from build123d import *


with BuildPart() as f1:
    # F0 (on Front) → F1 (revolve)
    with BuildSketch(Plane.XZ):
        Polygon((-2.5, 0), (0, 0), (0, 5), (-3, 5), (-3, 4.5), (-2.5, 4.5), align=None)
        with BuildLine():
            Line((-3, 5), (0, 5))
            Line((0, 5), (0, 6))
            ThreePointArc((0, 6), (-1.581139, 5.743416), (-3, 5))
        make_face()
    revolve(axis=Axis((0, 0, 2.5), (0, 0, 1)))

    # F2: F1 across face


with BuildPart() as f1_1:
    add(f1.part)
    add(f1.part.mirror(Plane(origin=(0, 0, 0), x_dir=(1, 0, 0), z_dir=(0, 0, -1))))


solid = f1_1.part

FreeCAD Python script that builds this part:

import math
import FreeCAD as App
import Part
import Sketcher

V = App.Vector

doc = App.newDocument("Part")
params = doc.addObject("Spreadsheet::Sheet", "Params")
for row, (alias, value) in enumerate([
    ("sketch1_height", "6 mm"),
    ("sketch1_width", "2.5 mm"),
    ("sketch1_width2", "0.5 mm"),
    ("sketch1_height2", "4.5 mm"),
    ("revolution_angle", "360 deg"),
], start=1):
    params.set(f"A{row}", alias)
    params.set(f"B{row}", "=" + value)
    params.setAlias(f"B{row}", alias)

body = doc.addObject("PartDesign::Body", "Body")

sketch1 = doc.addObject("Sketcher::SketchObject", "Sketch")
body.addObject(sketch1)
sketch1.AttachmentSupport = (doc.XZ_Plane, [""])
sketch1.MapMode = "FlatFace"
sketch1.addGeometry(Part.LineSegment(V(-2.5, 0, 0), V(0, 0, 0)), False)
sketch1.addGeometry(Part.LineSegment(V(0, 0, 0), V(0, 6, 0)), False)
sketch1.addGeometry(Part.ArcOfCircle(Part.Circle(V(0, 1, 0), V(0, 0, 1), 5), math.radians(90), math.radians(127)), False)
sketch1.addGeometry(Part.LineSegment(V(-3, 5, 0), V(-3, 4.5, 0)), False)
sketch1.addGeometry(Part.LineSegment(V(-3, 4.5, 0), V(-2.5, 4.5, 0)), False)
sketch1.addGeometry(Part.LineSegment(V(-2.5, 4.5, 0), V(-2.5, 0, 0)), False)
sketch1.addConstraint(Sketcher.Constraint("Coincident", 0, 2, 1, 1))
sketch1.addConstraint(Sketcher.Constraint("Coincident", 1, 2, 2, 1))
sketch1.addConstraint(Sketcher.Constraint("Coincident", 2, 2, 3, 1))
sketch1.addConstraint(Sketcher.Constraint("Coincident", 3, 2, 4, 1))
sketch1.addConstraint(Sketcher.Constraint("Coincident", 4, 2, 5, 1))
sketch1.addConstraint(Sketcher.Constraint("Coincident", 5, 2, 0, 1))
sketch1.addConstraint(Sketcher.Constraint("Horizontal", 0))
sketch1.addConstraint(Sketcher.Constraint("Vertical", 1))
sketch1.addConstraint(Sketcher.Constraint("Vertical", 3))
sketch1.addConstraint(Sketcher.Constraint("Horizontal", 4))
sketch1.addConstraint(Sketcher.Constraint("Vertical", 5))
sketch1.addConstraint(Sketcher.Constraint("Coincident", 0, 2, -1, 1))
sketch1.addConstraint(Sketcher.Constraint("Equal", 4, 3))
sketch1.addConstraint(Sketcher.Constraint("DistanceY", 1, 1, 1, 2, 6.0))
sketch1.addConstraint(Sketcher.Constraint("DistanceX", 0, 1, 0, 2, 2.5))
sketch1.addConstraint(Sketcher.Constraint("DistanceX", 4, 1, 4, 2, 0.5))
sketch1.addConstraint(Sketcher.Constraint("DistanceY", 5, 2, 5, 1, 4.5))
sketch1.addConstraint(Sketcher.Constraint("Radius", 2, 5.000008))
sketch1.setExpression("Constraints[13]", "Params.sketch1_height")
sketch1.setExpression("Constraints[14]", "Params.sketch1_width")
sketch1.setExpression("Constraints[15]", "Params.sketch1_width2")
sketch1.setExpression("Constraints[16]", "Params.sketch1_height2")
revolution = doc.addObject("PartDesign::Revolution", "Revolution")
body.addObject(revolution)
revolution.Profile = sketch1
revolution.ReferenceAxis = (sketch1, ["V_Axis"])
revolution.setExpression("Angle", "Params.revolution_angle")
body2 = doc.addObject("PartDesign::Body", "Body001")
doc.recompute()

body2.BaseFeature = body
doc.recompute()

mirroring = doc.addObject("Part::Mirroring", "Mirroring")
mirroring.Source = body
mirroring.Base = V(0, 0, 0)
mirroring.Normal = V(0, 0, -1)
body3 = doc.addObject("PartDesign::Body", "Body002")
body3.BaseFeature = mirroring
boolean = doc.addObject("PartDesign::Boolean", "Boolean")
body2.addObject(boolean)
boolean.Type = "Fuse"
boolean.addObjects([body3])
doc.recompute()
mirroring.Visibility = False

doc.recompute()
